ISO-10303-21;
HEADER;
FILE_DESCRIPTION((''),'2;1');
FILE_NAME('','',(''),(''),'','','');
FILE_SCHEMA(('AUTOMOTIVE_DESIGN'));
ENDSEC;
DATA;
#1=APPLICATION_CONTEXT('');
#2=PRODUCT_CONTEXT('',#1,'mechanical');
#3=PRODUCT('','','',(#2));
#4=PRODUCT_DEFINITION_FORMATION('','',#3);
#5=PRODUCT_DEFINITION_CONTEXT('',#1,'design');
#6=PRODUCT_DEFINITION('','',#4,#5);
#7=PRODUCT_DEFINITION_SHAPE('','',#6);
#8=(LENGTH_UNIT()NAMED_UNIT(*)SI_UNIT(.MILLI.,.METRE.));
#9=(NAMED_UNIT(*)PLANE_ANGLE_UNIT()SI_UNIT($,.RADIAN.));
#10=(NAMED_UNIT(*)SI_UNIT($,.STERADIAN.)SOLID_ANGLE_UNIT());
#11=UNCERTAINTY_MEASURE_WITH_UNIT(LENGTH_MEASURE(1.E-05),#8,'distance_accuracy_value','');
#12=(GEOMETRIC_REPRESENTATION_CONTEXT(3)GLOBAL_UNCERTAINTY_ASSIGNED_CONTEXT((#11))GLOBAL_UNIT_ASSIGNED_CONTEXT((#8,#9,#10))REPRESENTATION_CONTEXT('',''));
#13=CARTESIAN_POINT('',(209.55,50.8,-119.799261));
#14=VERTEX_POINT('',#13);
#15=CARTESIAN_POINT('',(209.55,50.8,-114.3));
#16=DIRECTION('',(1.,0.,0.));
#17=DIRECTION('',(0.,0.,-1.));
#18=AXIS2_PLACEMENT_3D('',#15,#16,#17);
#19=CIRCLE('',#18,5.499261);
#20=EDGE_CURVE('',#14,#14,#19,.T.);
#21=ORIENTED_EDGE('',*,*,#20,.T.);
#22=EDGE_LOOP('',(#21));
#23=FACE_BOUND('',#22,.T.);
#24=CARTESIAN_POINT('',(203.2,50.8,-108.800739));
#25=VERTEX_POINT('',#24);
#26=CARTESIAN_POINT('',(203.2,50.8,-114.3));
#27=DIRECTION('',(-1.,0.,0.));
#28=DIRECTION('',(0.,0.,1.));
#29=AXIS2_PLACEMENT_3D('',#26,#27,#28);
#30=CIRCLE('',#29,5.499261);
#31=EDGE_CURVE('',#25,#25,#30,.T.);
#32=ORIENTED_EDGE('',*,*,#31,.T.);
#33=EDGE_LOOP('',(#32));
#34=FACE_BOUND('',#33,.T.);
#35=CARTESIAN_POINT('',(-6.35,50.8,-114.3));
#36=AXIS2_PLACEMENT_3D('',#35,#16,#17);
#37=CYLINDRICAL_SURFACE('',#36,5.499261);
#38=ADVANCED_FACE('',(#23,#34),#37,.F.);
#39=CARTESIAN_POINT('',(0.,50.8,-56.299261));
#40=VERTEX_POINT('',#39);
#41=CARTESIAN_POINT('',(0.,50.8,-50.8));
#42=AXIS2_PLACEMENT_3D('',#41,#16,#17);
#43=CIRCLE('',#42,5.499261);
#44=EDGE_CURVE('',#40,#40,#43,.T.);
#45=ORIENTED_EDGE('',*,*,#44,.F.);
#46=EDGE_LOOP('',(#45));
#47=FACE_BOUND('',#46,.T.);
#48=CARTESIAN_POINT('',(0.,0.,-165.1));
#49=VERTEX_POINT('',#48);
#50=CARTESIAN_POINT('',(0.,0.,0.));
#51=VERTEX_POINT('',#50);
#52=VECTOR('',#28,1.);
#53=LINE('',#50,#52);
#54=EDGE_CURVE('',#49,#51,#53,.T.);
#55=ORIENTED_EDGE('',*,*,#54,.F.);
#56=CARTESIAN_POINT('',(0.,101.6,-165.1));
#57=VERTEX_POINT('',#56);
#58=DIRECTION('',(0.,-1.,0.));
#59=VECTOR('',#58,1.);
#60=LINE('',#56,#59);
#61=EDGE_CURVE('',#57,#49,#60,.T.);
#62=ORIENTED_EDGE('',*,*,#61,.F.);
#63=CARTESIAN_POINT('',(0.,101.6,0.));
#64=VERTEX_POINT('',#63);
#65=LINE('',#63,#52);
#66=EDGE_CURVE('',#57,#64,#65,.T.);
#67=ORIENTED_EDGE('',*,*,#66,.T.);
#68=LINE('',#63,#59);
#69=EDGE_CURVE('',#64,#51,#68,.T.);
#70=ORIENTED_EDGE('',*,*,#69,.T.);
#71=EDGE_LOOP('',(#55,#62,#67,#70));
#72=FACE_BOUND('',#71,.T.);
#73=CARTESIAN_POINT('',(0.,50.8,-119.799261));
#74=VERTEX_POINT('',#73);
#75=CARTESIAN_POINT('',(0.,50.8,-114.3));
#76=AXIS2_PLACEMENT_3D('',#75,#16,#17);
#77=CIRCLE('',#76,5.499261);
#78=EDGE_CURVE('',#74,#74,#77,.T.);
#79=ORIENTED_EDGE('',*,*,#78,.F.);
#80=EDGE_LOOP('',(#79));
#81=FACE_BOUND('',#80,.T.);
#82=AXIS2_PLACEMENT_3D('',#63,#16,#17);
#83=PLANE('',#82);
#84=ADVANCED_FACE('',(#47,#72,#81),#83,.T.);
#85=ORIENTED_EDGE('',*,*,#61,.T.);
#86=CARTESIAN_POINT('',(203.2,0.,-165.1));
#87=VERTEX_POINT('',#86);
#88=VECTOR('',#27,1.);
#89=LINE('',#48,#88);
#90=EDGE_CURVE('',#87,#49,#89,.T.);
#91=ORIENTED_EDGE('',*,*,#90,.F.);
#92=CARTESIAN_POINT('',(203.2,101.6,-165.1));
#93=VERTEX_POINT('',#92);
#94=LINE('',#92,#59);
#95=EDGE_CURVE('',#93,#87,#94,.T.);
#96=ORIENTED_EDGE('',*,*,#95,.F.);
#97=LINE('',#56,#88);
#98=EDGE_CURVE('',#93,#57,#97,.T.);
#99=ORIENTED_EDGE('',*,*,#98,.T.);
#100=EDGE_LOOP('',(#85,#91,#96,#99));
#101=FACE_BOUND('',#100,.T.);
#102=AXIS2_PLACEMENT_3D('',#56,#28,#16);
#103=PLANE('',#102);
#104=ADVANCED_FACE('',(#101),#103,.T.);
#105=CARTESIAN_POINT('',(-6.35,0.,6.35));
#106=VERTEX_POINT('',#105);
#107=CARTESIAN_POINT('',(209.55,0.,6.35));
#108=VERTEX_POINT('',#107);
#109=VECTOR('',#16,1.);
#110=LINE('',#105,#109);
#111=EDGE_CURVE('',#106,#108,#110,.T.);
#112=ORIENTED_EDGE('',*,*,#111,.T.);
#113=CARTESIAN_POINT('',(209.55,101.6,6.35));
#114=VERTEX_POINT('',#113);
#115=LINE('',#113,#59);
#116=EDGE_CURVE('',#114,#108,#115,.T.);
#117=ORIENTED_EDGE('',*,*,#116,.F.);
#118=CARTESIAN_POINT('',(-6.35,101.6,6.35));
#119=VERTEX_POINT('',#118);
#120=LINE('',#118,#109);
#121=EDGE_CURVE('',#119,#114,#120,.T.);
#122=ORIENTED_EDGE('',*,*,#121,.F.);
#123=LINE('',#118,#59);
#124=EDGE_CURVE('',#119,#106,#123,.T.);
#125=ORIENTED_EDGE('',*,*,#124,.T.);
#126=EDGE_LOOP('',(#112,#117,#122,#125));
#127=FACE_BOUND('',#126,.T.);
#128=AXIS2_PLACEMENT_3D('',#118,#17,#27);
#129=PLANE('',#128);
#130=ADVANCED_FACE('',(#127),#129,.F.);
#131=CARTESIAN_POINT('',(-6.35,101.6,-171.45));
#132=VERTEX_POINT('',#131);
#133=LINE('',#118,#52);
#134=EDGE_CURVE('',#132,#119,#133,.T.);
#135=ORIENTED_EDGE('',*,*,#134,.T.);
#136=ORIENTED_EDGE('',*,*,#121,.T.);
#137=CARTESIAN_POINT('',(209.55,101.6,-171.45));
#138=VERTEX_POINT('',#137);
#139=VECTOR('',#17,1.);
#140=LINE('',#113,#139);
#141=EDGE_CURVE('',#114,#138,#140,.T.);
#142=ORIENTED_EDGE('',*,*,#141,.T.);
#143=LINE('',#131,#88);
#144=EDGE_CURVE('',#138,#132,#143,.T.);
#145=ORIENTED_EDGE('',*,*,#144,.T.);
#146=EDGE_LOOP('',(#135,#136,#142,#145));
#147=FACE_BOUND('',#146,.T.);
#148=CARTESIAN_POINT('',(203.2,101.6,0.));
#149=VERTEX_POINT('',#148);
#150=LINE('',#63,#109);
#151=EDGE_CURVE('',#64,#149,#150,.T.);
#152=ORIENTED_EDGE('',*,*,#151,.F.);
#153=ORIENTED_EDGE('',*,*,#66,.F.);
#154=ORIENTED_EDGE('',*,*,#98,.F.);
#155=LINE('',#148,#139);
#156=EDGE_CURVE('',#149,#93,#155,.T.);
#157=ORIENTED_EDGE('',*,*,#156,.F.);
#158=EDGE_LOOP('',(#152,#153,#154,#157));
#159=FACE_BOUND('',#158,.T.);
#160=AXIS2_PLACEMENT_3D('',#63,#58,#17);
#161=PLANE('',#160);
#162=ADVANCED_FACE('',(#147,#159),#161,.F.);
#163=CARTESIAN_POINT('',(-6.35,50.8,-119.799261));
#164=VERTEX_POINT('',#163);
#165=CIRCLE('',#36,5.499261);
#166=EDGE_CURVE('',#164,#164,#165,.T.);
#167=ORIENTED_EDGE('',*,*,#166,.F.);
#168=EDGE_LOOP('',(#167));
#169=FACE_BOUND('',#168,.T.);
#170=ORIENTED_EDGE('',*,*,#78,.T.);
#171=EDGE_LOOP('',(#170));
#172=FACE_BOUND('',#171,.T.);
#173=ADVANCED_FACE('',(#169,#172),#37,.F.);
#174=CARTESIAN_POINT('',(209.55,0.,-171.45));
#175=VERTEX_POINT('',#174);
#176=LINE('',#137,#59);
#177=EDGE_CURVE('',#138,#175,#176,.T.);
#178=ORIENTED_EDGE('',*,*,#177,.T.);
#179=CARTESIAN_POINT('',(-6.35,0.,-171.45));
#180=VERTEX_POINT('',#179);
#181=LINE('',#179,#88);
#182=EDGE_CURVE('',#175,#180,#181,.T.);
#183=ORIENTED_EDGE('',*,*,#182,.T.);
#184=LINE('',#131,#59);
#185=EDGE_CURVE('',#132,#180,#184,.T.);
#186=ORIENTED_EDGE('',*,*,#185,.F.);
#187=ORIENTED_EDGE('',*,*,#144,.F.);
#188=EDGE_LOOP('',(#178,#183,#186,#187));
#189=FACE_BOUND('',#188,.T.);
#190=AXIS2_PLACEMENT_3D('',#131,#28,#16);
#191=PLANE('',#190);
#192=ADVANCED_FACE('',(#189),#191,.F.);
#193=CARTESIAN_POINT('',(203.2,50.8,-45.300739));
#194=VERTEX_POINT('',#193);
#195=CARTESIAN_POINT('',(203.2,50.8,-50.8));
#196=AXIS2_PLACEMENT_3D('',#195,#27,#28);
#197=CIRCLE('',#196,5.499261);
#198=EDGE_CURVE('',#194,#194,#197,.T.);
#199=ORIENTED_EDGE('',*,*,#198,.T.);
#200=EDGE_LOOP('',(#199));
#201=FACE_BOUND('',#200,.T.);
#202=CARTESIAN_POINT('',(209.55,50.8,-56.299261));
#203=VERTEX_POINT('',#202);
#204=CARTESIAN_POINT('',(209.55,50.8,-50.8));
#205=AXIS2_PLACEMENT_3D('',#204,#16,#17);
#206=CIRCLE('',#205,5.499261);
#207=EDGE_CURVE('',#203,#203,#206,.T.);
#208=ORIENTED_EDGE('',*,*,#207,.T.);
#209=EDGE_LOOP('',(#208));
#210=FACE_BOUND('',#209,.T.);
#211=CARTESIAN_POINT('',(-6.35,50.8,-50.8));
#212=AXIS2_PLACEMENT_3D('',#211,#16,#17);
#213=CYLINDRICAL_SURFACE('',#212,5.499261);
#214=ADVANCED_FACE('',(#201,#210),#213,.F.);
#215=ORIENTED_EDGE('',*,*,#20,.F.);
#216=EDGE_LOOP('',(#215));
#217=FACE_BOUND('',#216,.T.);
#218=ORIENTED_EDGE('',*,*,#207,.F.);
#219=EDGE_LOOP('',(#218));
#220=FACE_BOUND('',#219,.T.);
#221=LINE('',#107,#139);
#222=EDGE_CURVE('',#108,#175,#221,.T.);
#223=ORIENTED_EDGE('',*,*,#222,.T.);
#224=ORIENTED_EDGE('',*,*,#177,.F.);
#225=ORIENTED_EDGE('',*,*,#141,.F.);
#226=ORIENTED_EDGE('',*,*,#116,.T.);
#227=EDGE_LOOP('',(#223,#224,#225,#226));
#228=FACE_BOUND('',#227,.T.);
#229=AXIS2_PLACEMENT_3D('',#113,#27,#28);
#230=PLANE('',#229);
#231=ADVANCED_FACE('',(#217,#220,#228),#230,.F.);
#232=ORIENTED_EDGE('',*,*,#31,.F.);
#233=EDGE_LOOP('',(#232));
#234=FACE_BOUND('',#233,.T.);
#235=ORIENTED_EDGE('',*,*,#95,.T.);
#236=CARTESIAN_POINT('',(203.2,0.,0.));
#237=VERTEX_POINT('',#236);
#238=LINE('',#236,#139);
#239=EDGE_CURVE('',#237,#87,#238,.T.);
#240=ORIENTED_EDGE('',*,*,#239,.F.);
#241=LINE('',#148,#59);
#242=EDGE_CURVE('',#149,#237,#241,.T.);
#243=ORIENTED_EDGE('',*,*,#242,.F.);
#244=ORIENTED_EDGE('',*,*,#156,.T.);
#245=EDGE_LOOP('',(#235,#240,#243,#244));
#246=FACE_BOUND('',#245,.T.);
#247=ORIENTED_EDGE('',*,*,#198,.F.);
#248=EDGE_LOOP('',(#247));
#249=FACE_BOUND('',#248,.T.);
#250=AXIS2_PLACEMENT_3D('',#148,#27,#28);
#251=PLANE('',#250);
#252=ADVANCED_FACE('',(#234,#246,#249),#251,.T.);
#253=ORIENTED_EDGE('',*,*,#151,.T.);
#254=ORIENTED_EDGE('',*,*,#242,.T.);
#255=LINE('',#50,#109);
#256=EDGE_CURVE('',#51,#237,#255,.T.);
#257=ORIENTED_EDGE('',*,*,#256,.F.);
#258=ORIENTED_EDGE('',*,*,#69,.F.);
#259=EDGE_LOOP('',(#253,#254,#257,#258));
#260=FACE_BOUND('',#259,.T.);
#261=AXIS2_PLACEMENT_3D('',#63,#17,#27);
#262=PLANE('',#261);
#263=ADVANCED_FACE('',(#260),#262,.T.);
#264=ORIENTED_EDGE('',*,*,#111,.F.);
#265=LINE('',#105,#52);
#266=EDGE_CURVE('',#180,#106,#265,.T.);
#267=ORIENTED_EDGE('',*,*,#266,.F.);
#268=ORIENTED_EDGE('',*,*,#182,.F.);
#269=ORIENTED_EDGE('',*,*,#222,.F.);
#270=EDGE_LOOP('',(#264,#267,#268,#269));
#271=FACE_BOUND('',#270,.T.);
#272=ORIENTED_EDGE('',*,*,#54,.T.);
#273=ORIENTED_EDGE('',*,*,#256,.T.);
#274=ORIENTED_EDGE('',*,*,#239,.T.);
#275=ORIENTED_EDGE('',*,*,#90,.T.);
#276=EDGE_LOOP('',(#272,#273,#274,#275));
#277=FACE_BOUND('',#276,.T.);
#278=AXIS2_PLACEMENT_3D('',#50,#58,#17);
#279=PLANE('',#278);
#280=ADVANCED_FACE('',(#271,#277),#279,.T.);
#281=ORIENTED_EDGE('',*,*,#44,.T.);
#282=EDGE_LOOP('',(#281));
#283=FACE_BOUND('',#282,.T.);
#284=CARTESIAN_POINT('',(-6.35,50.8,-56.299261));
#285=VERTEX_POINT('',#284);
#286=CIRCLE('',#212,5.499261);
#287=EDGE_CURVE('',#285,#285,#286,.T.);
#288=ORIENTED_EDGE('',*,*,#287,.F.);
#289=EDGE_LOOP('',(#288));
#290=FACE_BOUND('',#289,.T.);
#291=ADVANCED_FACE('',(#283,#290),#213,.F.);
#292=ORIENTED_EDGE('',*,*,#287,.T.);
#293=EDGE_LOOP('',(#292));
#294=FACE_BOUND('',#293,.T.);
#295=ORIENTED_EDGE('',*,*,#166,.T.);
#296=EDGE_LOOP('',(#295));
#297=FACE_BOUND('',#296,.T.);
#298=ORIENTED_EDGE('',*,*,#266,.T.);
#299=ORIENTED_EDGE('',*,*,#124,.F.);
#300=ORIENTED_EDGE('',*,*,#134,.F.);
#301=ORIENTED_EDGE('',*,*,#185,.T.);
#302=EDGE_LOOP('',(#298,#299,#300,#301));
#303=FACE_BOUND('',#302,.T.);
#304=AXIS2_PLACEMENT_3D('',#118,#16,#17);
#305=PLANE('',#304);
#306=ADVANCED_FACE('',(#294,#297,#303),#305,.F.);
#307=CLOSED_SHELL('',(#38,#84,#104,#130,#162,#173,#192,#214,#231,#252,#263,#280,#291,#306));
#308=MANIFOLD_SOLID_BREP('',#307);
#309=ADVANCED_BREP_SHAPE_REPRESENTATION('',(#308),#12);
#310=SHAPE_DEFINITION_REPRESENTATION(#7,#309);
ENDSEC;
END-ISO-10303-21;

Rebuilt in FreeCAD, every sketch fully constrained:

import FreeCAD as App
import Part
import Sketcher
from FreeCAD import Vector
Q = App.Units.Quantity

doc = App.newDocument("Part")
body = doc.addObject("PartDesign::Body", "Body")

# Sketch on XZ plane
sketch1 = body.newObject("Sketcher::SketchObject", "Sketch")
sketch1.AttachmentSupport = (doc.getObject("XZ_Plane"), [""])
sketch1.MapMode = "FlatFace"
sketch1.addGeometry([
    Part.LineSegment(Vector(-6, -171, 0), Vector(-6, 6, 0)),  # 0
    Part.LineSegment(Vector(-6, 6, 0), Vector(210, 6, 0)),  # 1
    Part.LineSegment(Vector(210, 6, 0), Vector(210, -171, 0)),  # 2
    Part.LineSegment(Vector(210, -171, 0), Vector(-6, -171, 0)),  # 3
    Part.LineSegment(Vector(203, 0, 0), Vector(0, 0, 0)),  # 4
    Part.LineSegment(Vector(0, 0, 0), Vector(0, -165, 0)),  # 5
    Part.LineSegment(Vector(0, -165, 0), Vector(203, -165, 0)),  # 6
    Part.LineSegment(Vector(203, -165, 0), Vector(203, 0, 0)),  # 7
], False)
sketch1.addConstraint([
    Sketcher.Constraint("Coincident", 0, 2, 1, 1),
    Sketcher.Constraint("Coincident", 1, 2, 2, 1),
    Sketcher.Constraint("Coincident", 2, 2, 3, 1),
    Sketcher.Constraint("Coincident", 3, 2, 0, 1),
    Sketcher.Constraint("Coincident", 4, 2, 5, 1),
    Sketcher.Constraint("Coincident", 5, 2, 6, 1),
    Sketcher.Constraint("Coincident", 6, 2, 7, 1),
    Sketcher.Constraint("Coincident", 7, 2, 4, 1),
    Sketcher.Constraint("Vertical", 0),
    Sketcher.Constraint("Horizontal", 1),
    Sketcher.Constraint("Vertical", 2),
    Sketcher.Constraint("Horizontal", 3),
    Sketcher.Constraint("Horizontal", 4),
    Sketcher.Constraint("Vertical", 5),
    Sketcher.Constraint("Horizontal", 6),
    Sketcher.Constraint("Vertical", 7),
    Sketcher.Constraint("Coincident", 4, 2, -1, 1),
    Sketcher.Constraint("DistanceX", 4, 2, 4, 1, Q("8 in")),
    Sketcher.Constraint("DistanceY", 0, 1, 0, 2, Q("7 in")),
    Sketcher.Constraint("DistanceX", 1, 1, 1, 2, Q("8.5 in")),
    Sketcher.Constraint("DistanceY", 5, 2, 5, 1, Q("6.5 in")),
    Sketcher.Constraint("DistanceX", 0, 2, -1, 1, Q("0.25 in")),
    Sketcher.Constraint("DistanceY", -1, 1, 0, 2, Q("0.25 in")),
])
pad1 = body.newObject("PartDesign::Pad", "Pad")
pad1.Profile = sketch1
pad1.Length = Q("4 in")
pad1.Reversed = True

# Sketch on YZ plane
sketch2 = body.newObject("Sketcher::SketchObject", "Sketch001")
sketch2.AttachmentSupport = (doc.getObject("YZ_Plane"), [""])
sketch2.MapMode = "FlatFace"
sketch2.AttachmentOffset = App.Placement(Vector(0, 0, 8.25 * 25.4), App.Rotation())
sketch2.addGeometry([
    Part.Circle(Vector(51, -51, 0), Vector(0, 0, 1), 5),
    Part.Circle(Vector(51, -114, 0), Vector(0, 0, 1), 5),
], False)
sketch2.addConstraint([
    Sketcher.Constraint("Equal", 0, 1),
    Sketcher.Constraint("Vertical", 0, 3, 1, 3),
    Sketcher.Constraint("DistanceX", -1, 1, 0, 3, Q("2 in")),
    Sketcher.Constraint("DistanceY", 0, 3, -1, 1, Q("2 in")),
    Sketcher.Constraint("DistanceY", 1, 3, -1, 1, Q("4.5 in")),
    Sketcher.Constraint("Diameter", 0, Q("10.998523 mm")),
])
pocket1 = body.newObject("PartDesign::Pocket", "Pocket")
pocket1.Profile = sketch2
pocket1.Type = "ThroughAll"

doc.recompute()
